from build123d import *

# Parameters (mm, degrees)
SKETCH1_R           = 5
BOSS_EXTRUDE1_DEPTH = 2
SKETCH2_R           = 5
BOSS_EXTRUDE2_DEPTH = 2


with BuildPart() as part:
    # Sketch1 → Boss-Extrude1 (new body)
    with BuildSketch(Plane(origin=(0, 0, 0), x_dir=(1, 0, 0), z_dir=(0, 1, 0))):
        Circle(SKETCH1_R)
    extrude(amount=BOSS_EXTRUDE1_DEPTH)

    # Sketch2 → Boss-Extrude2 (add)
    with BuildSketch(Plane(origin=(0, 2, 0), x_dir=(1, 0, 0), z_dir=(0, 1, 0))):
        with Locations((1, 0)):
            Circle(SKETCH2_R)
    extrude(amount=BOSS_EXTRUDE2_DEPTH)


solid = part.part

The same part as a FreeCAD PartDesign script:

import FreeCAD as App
import Part
import Sketcher

V = App.Vector

doc = App.newDocument("Part")
body = doc.addObject("PartDesign::Body", "Body")

sketch1 = body.newObject("Sketcher::SketchObject", "Sketch")
sketch1.AttachmentSupport = (doc.getObject("XZ_Plane"), [""])
sketch1.MapMode = "FlatFace"
sketch1.addGeometry(Part.Circle(V(0, 0, 0), V(0, 0, 1), 5), False)
sketch1.addConstraint(Sketcher.Constraint("Coincident", 0, 3, -1, 1))
sketch1.addConstraint(Sketcher.Constraint("Diameter", 0, 10.0))
pad1 = body.newObject("PartDesign::Pad", "Pad")
pad1.Profile = sketch1
pad1.Length = 2
pad1.Reversed = True

sketch2 = body.newObject("Sketcher::SketchObject", "Sketch001")
sketch2.AttachmentSupport = (doc.getObject("XZ_Plane"), [""])
sketch2.MapMode = "FlatFace"
sketch2.AttachmentOffset = App.Placement(V(0, 0, -2), App.Rotation())
sketch2.addGeometry(Part.Circle(V(1, 0, 0), V(0, 0, 1), 5), False)
sketch2.addConstraint(Sketcher.Constraint("PointOnObject", 0, 3, -1))
sketch2.addConstraint(Sketcher.Constraint("Diameter", 0, 10.0))
sketch2.addConstraint(Sketcher.Constraint("DistanceX", -1, 1, 0, 3, 1.0))
pad2 = body.newObject("PartDesign::Pad", "Pad001")
pad2.Profile = sketch2
pad2.Length = 2
pad2.Reversed = True

doc.recompute()
